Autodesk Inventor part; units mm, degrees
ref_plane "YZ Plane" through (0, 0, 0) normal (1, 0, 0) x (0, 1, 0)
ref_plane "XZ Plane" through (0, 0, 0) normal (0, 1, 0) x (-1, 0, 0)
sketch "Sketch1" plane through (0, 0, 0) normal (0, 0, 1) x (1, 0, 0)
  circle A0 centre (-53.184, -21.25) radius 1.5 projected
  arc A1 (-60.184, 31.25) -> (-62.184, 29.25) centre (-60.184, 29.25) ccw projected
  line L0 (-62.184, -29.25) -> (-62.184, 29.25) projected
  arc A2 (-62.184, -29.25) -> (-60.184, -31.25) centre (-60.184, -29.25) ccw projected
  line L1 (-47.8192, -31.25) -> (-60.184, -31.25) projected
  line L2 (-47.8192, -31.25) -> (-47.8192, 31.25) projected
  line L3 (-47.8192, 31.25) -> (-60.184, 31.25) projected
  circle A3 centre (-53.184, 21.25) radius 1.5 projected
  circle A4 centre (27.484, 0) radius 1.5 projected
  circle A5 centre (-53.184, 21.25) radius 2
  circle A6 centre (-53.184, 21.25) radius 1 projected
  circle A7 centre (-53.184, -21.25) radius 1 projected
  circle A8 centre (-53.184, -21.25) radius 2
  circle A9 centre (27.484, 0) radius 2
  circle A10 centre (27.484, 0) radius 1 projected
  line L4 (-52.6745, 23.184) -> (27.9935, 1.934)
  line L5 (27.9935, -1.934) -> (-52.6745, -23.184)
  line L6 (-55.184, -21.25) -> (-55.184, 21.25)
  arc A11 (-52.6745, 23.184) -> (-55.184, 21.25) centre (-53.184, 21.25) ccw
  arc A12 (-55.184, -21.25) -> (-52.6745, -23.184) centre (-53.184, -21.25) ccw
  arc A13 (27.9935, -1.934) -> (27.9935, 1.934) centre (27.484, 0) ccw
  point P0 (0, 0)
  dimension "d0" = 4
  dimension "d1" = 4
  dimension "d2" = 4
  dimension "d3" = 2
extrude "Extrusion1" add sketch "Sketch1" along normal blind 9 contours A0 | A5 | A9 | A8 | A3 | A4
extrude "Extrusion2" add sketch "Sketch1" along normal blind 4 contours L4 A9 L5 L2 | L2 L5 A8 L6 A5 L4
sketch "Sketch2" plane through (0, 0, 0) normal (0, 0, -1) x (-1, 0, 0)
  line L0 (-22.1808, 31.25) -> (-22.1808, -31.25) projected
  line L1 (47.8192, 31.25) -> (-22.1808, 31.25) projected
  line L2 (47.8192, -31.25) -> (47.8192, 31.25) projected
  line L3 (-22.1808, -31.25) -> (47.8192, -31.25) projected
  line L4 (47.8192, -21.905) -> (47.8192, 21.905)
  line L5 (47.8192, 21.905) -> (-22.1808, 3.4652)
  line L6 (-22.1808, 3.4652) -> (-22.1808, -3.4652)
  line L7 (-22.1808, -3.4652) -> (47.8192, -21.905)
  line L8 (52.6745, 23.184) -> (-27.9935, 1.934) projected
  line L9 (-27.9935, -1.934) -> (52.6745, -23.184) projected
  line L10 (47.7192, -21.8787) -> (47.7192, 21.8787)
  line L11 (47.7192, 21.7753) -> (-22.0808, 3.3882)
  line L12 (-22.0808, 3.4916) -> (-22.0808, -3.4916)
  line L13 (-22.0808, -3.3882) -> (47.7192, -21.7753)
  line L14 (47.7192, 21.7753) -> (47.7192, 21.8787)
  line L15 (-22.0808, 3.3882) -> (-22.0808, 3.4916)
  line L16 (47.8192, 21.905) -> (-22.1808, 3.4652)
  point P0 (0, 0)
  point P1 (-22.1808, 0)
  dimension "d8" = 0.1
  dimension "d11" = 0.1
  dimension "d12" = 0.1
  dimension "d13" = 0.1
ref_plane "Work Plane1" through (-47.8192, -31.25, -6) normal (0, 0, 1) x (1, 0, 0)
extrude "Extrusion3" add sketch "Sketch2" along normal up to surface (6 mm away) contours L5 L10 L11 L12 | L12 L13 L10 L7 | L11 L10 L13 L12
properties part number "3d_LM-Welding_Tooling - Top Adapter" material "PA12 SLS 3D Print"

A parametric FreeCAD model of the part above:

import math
import FreeCAD as App
import Part
import Sketcher

doc = App.newDocument("Part")
body = doc.addObject("PartDesign::Body", "Body")
body.AllowCompound = True

# Sketch on XY plane
sketch1 = body.newObject("Sketcher::SketchObject", "Sketch")
sketch1.AttachmentSupport = (doc.getObject("XY_Plane"), [""])
sketch1.MapMode = "FlatFace"
sketch1.addGeometry([
    Part.Circle(App.Vector(-53.2, -21.2, 0), App.Vector(0, 0, 1), 2),  # 0
    Part.Circle(App.Vector(-53.2, -21.2, 0), App.Vector(0, 0, 1), 1),  # 1
    Part.Circle(App.Vector(-53.2, 21.2, 0), App.Vector(0, 0, 1), 2),  # 2
    Part.Circle(App.Vector(-53.2, 21.2, 0), App.Vector(0, 0, 1), 1),  # 3
    Part.Circle(App.Vector(27.5, 0, 0), App.Vector(0, 0, 1), 2),  # 4
    Part.Circle(App.Vector(27.5, 0, 0), App.Vector(0, 0, 1), 1),  # 5
], False)
sketch1.addConstraint([
    Sketcher.Constraint("Coincident", 1, 3, 0, 3),
    Sketcher.Constraint("Coincident", 3, 3, 2, 3),
    Sketcher.Constraint("Coincident", 5, 3, 4, 3),
    Sketcher.Constraint("Equal", 0, 2),
    Sketcher.Constraint("Equal", 1, 3),
    Sketcher.Constraint("Equal", 2, 4),
    Sketcher.Constraint("Equal", 3, 5),
    Sketcher.Constraint("Symmetric", 0, 3, 2, 3, -1),
    Sketcher.Constraint("PointOnObject", 4, 3, -1),
    Sketcher.Constraint("Diameter", 0, 4.0),
    Sketcher.Constraint("Diameter", 1, 2.0),
    Sketcher.Constraint("DistanceY", 0, 3, 2, 3, 42.5),
    Sketcher.Constraint("DistanceX", 0, 3, -1, 1, 53.184),
    Sketcher.Constraint("DistanceX", -1, 1, 4, 3, 27.484),
])
pad1 = body.newObject("PartDesign::Pad", "Pad")
pad1.Profile = sketch1
pad1.Length = 9

# Sketch on XY plane
sketch2 = body.newObject("Sketcher::SketchObject", "Sketch001")
sketch2.AttachmentSupport = (doc.getObject("XY_Plane"), [""])
sketch2.MapMode = "FlatFace"
sketch2.addGeometry([
    Part.LineSegment(App.Vector(28, 1.9, 0), App.Vector(-52.7, 23.2, 0)),  # 0
    Part.ArcOfCircle(Part.Circle(App.Vector(-53.2, 21.2, 0), App.Vector(0, 0, 1), 2), math.radians(180), math.radians(435)),  # 1
    Part.LineSegment(App.Vector(-55.2, 21.2, 0), App.Vector(-55.2, -21.2, 0)),  # 2
    Part.ArcOfCircle(Part.Circle(App.Vector(-53.2, -21.2, 0), App.Vector(0, 0, 1), 2), math.radians(-75), math.radians(180)),  # 3
    Part.LineSegment(App.Vector(-52.7, -23.2, 0), App.Vector(28, -1.9, 0)),  # 4
    Part.ArcOfCircle(Part.Circle(App.Vector(27.5, 0, 0), App.Vector(0, 0, 1), 2), math.radians(75), math.radians(285)),  # 5
], False)
sketch2.addConstraint([
    Sketcher.Constraint("Tangent", 0, 2, 1, 2),
    Sketcher.Constraint("Tangent", 1, 1, 2, 1),
    Sketcher.Constraint("Tangent", 2, 2, 3, 2),
    Sketcher.Constraint("Tangent", 3, 1, 4, 1),
    Sketcher.Constraint("Tangent", 4, 2, 5, 2),
    Sketcher.Constraint("Tangent", 5, 1, 0, 1),
    Sketcher.Constraint("Vertical", 2),
    Sketcher.Constraint("Equal", 1, 3),
    Sketcher.Constraint("Equal", 3, 5),
    Sketcher.Constraint("Symmetric", 0, 2, 3, 1, -1),
    Sketcher.Constraint("Radius", 1, 2.0),
    Sketcher.Constraint("DistanceY", 2, 2, 2, 1, 42.5),
    Sketcher.Constraint("Distance", 0, 83.42),
    Sketcher.Constraint("DistanceX", 1, 3, -1, 1, 53.184),
])
pad2 = body.newObject("PartDesign::Pad", "Pad001")
pad2.Profile = sketch2
pad2.Length = 4

# Sketch on XY plane
sketch3 = body.newObject("Sketcher::SketchObject", "Sketch002")
sketch3.AttachmentSupport = (doc.getObject("XY_Plane"), [""])
sketch3.MapMode = "FlatFace"
sketch3.addGeometry([
    Part.LineSegment(App.Vector(-48, 22, 0), App.Vector(22, 3, 0)),
    Part.LineSegment(App.Vector(22, 3, 0), App.Vector(22, -3, 0)),
    Part.LineSegment(App.Vector(22, -3, 0), App.Vector(-48, -22, 0)),
    Part.LineSegment(App.Vector(-48, -22, 0), App.Vector(-48, 22, 0)),
], False)
sketch3.addConstraint([
    Sketcher.Constraint("Coincident", 0, 2, 1, 1),
    Sketcher.Constraint("Coincident", 1, 2, 2, 1),
    Sketcher.Constraint("Coincident", 2, 2, 3, 1),
    Sketcher.Constraint("Coincident", 3, 2, 0, 1),
    Sketcher.Constraint("Vertical", 1),
    Sketcher.Constraint("Vertical", 3),
    Sketcher.Constraint("Equal", 0, 2),
    Sketcher.Constraint("DistanceX", 2, 2, 1, 2, 69.8),
    Sketcher.Constraint("DistanceY", 1, 2, 1, 1, 6.9832),
    Sketcher.Constraint("DistanceY", 3, 1, 3, 2, 43.7574),
    Sketcher.Constraint("DistanceX", -1, 1, 0, 2, 22.0808),
    Sketcher.Constraint("DistanceY", -1, 1, 0, 2, 3.4915),
])
pad3 = body.newObject("PartDesign::Pad", "Pad002")
pad3.Profile = sketch3
pad3.Length = 6
pad3.Reversed = True

doc.recompute()
